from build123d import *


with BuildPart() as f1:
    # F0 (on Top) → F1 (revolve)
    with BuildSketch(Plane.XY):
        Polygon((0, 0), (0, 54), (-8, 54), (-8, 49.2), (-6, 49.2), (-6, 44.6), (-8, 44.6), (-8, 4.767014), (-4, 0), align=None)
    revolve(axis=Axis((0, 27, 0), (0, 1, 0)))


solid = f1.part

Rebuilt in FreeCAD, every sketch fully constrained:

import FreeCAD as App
import Part
import Sketcher
Q = App.Units.Quantity

doc = App.newDocument("Part")
body = doc.addObject("PartDesign::Body", "Body")

sketch1 = body.newObject("Sketcher::SketchObject", "Sketch")
sketch1.AttachmentSupport = (doc.getObject("XY_Plane"), [""])
sketch1.MapMode = "FlatFace"
sketch1.addGeometry(Part.LineSegment(App.Vector(0, 0, 0), App.Vector(0, 54, 0)), False)
sketch1.addGeometry(Part.LineSegment(App.Vector(0, 54, 0), App.Vector(-8, 54, 0)), False)
sketch1.addGeometry(Part.LineSegment(App.Vector(-8, 54, 0), App.Vector(-8, 49.2, 0)), False)
sketch1.addGeometry(Part.LineSegment(App.Vector(-8, 49.2, 0), App.Vector(-6, 49.2, 0)), False)
sketch1.addGeometry(Part.LineSegment(App.Vector(-6, 49.2, 0), App.Vector(-6, 44.6, 0)), False)
sketch1.addGeometry(Part.LineSegment(App.Vector(-6, 44.6, 0), App.Vector(-8, 44.6, 0)), False)
sketch1.addGeometry(Part.LineSegment(App.Vector(-8, 44.6, 0), App.Vector(-8, 4.8, 0)), False)
sketch1.addGeometry(Part.LineSegment(App.Vector(-8, 4.8, 0), App.Vector(-4, 0, 0)), False)
sketch1.addGeometry(Part.LineSegment(App.Vector(-4, 0, 0), App.Vector(0, 0, 0)), False)
sketch1.addConstraint(Sketcher.Constraint("Coincident", 0, 2, 1, 1))
sketch1.addConstraint(Sketcher.Constraint("Coincident", 1, 2, 2, 1))
sketch1.addConstraint(Sketcher.Constraint("Coincident", 2, 2, 3, 1))
sketch1.addConstraint(Sketcher.Constraint("Coincident", 3, 2, 4, 1))
sketch1.addConstraint(Sketcher.Constraint("Coincident", 4, 2, 5, 1))
sketch1.addConstraint(Sketcher.Constraint("Coincident", 5, 2, 6, 1))
sketch1.addConstraint(Sketcher.Constraint("Coincident", 6, 2, 7, 1))
sketch1.addConstraint(Sketcher.Constraint("Coincident", 7, 2, 8, 1))
sketch1.addConstraint(Sketcher.Constraint("Coincident", 8, 2, 0, 1))
sketch1.addConstraint(Sketcher.Constraint("Vertical", 0))
sketch1.addConstraint(Sketcher.Constraint("Horizontal", 1))
sketch1.addConstraint(Sketcher.Constraint("Vertical", 2))
sketch1.addConstraint(Sketcher.Constraint("Horizontal", 3))
sketch1.addConstraint(Sketcher.Constraint("Vertical", 4))
sketch1.addConstraint(Sketcher.Constraint("Horizontal", 5))
sketch1.addConstraint(Sketcher.Constraint("Vertical", 6))
sketch1.addConstraint(Sketcher.Constraint("Horizontal", 8))
sketch1.addConstraint(Sketcher.Constraint("Coincident", 8, 2, -1, 1))
sketch1.addConstraint(Sketcher.Constraint("Vertical", 2, 2, 5, 2))
sketch1.addConstraint(Sketcher.Constraint("DistanceX", 1, 2, 1, 1, Q("8 mm")))
sketch1.addConstraint(Sketcher.Constraint("DistanceX", 3, 1, 3, 2, Q("2 mm")))
sketch1.addConstraint(Sketcher.Constraint("DistanceX", 8, 1, 8, 2, Q("4 mm")))
sketch1.addConstraint(Sketcher.Constraint("DistanceY", 0, 1, 0, 2, Q("54 mm")))
sketch1.addConstraint(Sketcher.Constraint("Angle", 7, Q("-49.999998 deg")))
sketch1.addConstraint(Sketcher.Constraint("DistanceY", 2, 2, 2, 1, Q("4.8 mm")))
sketch1.addConstraint(Sketcher.Constraint("DistanceY", 4, 2, 4, 1, Q("4.6 mm")))
revolution = body.newObject("PartDesign::Revolution", "Revolution")
revolution.Profile = sketch1
revolution.ReferenceAxis = (sketch1, ["V_Axis"])
revolution.Angle = 360

doc.recompute()
